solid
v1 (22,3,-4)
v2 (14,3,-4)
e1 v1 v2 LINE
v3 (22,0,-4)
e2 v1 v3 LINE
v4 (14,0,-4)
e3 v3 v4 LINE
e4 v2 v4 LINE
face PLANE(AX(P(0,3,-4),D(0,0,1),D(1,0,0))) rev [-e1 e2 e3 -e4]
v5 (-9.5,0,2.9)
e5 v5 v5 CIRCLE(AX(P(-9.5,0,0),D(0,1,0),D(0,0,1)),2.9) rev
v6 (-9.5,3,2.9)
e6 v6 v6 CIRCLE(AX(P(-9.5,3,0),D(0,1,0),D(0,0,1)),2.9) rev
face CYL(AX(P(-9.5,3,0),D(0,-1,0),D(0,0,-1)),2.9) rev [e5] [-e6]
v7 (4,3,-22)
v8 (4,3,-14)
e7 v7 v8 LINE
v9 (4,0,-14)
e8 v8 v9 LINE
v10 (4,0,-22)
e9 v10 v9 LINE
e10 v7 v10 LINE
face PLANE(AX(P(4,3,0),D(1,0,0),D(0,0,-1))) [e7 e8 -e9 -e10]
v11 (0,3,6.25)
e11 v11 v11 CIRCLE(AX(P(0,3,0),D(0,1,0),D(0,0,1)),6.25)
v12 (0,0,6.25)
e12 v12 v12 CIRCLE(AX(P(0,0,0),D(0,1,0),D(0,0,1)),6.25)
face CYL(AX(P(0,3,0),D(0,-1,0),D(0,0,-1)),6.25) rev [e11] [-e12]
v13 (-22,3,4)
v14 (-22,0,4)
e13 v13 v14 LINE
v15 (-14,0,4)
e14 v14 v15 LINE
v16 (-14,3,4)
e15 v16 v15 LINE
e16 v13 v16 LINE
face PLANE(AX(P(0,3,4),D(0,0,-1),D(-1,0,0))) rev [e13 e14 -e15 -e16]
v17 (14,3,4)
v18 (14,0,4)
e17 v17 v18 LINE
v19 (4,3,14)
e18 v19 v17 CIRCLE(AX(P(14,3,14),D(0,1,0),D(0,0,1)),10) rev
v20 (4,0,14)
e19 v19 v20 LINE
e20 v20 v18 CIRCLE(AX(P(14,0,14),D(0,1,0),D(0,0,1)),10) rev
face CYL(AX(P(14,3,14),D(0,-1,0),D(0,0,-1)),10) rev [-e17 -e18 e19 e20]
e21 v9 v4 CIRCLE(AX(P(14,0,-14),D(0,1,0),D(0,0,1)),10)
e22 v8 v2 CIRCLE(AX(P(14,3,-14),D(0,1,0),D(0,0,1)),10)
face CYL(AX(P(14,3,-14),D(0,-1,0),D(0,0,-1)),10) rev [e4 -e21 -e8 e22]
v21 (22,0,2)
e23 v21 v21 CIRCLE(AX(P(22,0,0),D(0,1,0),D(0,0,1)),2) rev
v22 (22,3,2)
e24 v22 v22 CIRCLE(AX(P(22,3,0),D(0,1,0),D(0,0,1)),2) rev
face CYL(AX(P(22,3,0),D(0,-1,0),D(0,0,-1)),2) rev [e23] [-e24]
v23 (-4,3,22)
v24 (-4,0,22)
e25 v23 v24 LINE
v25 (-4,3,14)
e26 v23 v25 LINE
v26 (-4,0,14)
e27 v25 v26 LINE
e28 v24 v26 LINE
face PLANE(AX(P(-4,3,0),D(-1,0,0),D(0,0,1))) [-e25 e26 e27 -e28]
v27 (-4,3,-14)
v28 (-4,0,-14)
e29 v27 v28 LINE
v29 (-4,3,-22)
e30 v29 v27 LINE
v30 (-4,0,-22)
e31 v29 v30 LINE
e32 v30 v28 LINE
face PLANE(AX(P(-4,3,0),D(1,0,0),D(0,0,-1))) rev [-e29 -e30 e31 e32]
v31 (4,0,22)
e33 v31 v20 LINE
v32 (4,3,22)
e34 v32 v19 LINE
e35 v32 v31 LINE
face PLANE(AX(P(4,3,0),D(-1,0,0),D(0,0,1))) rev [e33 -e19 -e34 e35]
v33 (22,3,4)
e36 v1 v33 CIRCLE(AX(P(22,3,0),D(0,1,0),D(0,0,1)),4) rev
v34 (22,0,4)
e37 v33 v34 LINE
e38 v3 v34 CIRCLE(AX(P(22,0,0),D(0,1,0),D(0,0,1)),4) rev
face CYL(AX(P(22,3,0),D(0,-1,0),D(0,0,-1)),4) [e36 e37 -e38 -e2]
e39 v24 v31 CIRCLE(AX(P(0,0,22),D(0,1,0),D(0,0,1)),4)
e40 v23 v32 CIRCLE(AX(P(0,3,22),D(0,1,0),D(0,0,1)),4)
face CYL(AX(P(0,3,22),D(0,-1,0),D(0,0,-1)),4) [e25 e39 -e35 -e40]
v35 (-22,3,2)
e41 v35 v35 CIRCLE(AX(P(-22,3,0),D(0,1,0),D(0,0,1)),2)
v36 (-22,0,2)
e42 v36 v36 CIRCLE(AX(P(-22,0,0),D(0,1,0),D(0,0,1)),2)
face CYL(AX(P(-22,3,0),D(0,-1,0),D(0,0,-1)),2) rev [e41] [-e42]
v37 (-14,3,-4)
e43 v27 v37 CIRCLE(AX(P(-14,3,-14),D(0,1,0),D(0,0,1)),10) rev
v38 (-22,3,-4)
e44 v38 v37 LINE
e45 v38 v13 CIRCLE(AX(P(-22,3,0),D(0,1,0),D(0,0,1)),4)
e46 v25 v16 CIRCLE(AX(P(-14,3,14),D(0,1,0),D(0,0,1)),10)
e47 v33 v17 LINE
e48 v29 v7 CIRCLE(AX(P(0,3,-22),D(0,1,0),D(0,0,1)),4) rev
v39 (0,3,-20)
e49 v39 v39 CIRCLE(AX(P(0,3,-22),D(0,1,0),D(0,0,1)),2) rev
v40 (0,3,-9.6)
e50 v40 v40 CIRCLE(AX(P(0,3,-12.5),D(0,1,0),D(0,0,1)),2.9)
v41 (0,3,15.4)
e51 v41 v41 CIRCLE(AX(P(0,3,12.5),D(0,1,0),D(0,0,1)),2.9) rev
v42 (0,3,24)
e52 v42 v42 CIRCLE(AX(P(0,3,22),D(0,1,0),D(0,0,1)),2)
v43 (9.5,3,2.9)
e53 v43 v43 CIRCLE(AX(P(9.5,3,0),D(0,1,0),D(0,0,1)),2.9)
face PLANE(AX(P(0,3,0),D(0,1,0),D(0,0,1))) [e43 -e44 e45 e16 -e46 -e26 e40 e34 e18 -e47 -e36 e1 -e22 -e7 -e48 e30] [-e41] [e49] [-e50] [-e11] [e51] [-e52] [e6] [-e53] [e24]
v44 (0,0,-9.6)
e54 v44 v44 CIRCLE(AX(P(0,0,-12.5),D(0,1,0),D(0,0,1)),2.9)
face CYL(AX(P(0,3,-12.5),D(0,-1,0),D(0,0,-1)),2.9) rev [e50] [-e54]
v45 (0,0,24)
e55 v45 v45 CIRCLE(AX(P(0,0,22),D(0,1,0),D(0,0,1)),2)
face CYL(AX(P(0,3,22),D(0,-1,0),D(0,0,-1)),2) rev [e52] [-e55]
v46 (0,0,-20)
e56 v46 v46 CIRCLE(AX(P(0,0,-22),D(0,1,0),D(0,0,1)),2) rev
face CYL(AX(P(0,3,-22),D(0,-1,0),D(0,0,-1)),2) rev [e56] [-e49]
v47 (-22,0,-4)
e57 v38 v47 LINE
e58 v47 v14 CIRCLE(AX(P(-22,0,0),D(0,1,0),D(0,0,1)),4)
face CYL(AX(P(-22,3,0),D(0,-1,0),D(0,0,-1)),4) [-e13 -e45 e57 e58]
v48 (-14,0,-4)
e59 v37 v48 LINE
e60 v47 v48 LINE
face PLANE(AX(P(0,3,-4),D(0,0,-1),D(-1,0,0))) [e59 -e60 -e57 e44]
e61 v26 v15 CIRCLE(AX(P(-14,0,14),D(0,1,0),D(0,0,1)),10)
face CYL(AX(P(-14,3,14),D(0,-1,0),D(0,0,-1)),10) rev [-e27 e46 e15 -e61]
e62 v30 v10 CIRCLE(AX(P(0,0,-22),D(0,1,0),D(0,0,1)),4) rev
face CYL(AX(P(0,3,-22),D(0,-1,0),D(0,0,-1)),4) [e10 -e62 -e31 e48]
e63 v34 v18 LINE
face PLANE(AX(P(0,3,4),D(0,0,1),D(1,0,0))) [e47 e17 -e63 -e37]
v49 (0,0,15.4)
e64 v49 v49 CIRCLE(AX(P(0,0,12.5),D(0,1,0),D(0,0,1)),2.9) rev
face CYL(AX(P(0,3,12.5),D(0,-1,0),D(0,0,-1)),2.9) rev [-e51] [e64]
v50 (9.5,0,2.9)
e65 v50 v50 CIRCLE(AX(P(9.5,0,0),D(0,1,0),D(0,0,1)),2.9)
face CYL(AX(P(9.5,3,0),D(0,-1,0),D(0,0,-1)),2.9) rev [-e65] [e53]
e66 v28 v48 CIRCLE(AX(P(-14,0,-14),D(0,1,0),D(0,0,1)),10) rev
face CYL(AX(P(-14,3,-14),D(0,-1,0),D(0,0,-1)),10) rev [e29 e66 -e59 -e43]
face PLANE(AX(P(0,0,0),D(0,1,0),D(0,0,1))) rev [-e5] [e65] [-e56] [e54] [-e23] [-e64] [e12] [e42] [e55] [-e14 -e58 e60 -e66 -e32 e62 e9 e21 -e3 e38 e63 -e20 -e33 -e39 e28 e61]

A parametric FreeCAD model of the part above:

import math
import FreeCAD as App
import Part
import Sketcher
Q = App.Units.Quantity

doc = App.newDocument("Part")
params = doc.addObject("Spreadsheet::Sheet", "Params")
for row, (alias, value) in enumerate([
    ("sketch1_diameter", "4 mm"),
    ("sketch1_radius", "4 mm"),
    ("sketch1_radius2", "10 mm"),
    ("sketch1_diameter2", "5.8 mm"),
    ("sketch1_diameter3", "12.5 mm"),
    ("pad1_length", "3 mm"),
], start=1):
    params.set(f"A{row}", alias)
    params.set(f"B{row}", "=" + value)
    params.setAlias(f"B{row}", alias)

body = doc.addObject("PartDesign::Body", "Body")

sketch1 = body.newObject("Sketcher::SketchObject", "Sketch")
sketch1.AttachmentSupport = (doc.getObject("XZ_Plane"), [""])
sketch1.MapMode = "FlatFace"
sketch1.addGeometry([
    Part.ArcOfCircle(Part.Circle(App.Vector(0, -22, 0), App.Vector(0, 0, 1), 4), math.radians(180), math.radians(360)),
    Part.LineSegment(App.Vector(-4, -22, 0), App.Vector(-4, -14, 0)),
    Part.ArcOfCircle(Part.Circle(App.Vector(-14, -14, 0), App.Vector(0, 0, 1), 10), math.radians(0), math.radians(90)),
    Part.LineSegment(App.Vector(-14, -4, 0), App.Vector(-22, -4, 0)),
    Part.ArcOfCircle(Part.Circle(App.Vector(-22, 0, 0), App.Vector(0, 0, 1), 4), math.radians(90), math.radians(270)),
    Part.LineSegment(App.Vector(-22, 4, 0), App.Vector(-14, 4, 0)),
    Part.ArcOfCircle(Part.Circle(App.Vector(-14, 14, 0), App.Vector(0, 0, 1), 10), math.radians(-90), math.radians(0)),
    Part.LineSegment(App.Vector(-4, 14, 0), App.Vector(-4, 22, 0)),
    Part.ArcOfCircle(Part.Circle(App.Vector(0, 22, 0), App.Vector(0, 0, 1), 4), math.radians(0), math.radians(180)),
    Part.LineSegment(App.Vector(4, 22, 0), App.Vector(4, 14, 0)),
    Part.ArcOfCircle(Part.Circle(App.Vector(14, 14, 0), App.Vector(0, 0, 1), 10), math.radians(180), math.radians(270)),
    Part.LineSegment(App.Vector(14, 4, 0), App.Vector(22, 4, 0)),
    Part.ArcOfCircle(Part.Circle(App.Vector(22, 0, 0), App.Vector(0, 0, 1), 4), math.radians(-90), math.radians(90)),
    Part.LineSegment(App.Vector(22, -4, 0), App.Vector(14, -4, 0)),
    Part.ArcOfCircle(Part.Circle(App.Vector(14, -14, 0), App.Vector(0, 0, 1), 10), math.radians(90), math.radians(180)),
    Part.LineSegment(App.Vector(4, -14, 0), App.Vector(4, -22, 0)),
    Part.Circle(App.Vector(0, 22, 0), App.Vector(0, 0, 1), 2),
    Part.Circle(App.Vector(0, 12.5, 0), App.Vector(0, 0, 1), 2.9),
    Part.Circle(App.Vector(-22, 0, 0), App.Vector(0, 0, 1), 2),
    Part.Circle(App.Vector(-9.5, 0, 0), App.Vector(0, 0, 1), 2.9),
    Part.Circle(App.Vector(0, 0, 0), App.Vector(0, 0, 1), 6.25),
    Part.Circle(App.Vector(9.5, 0, 0), App.Vector(0, 0, 1), 2.9),
    Part.Circle(App.Vector(22, 0, 0), App.Vector(0, 0, 1), 2),
    Part.Circle(App.Vector(0, -12.5, 0), App.Vector(0, 0, 1), 2.9),
    Part.Circle(App.Vector(0, -22, 0), App.Vector(0, 0, 1), 2),
], False)
sketch1.addConstraint([
    Sketcher.Constraint("Tangent", 0, 1, 1, 1),
    Sketcher.Constraint("Tangent", 1, 2, 2, 1),
    Sketcher.Constraint("Tangent", 2, 2, 3, 1),
    Sketcher.Constraint("Tangent", 3, 2, 4, 2),
    Sketcher.Constraint("Tangent", 4, 1, 5, 1),
    Sketcher.Constraint("Tangent", 5, 2, 6, 1),
    Sketcher.Constraint("Tangent", 6, 2, 7, 1),
    Sketcher.Constraint("Tangent", 7, 2, 8, 2),
    Sketcher.Constraint("Tangent", 8, 1, 9, 1),
    Sketcher.Constraint("Tangent", 9, 2, 10, 1),
    Sketcher.Constraint("Tangent", 10, 2, 11, 1),
    Sketcher.Constraint("Tangent", 11, 2, 12, 2),
    Sketcher.Constraint("Tangent", 12, 1, 13, 1),
    Sketcher.Constraint("Tangent", 13, 2, 14, 1),
    Sketcher.Constraint("Tangent", 14, 2, 15, 1),
    Sketcher.Constraint("Tangent", 15, 2, 0, 2),
    Sketcher.Constraint("Vertical", 1),
    Sketcher.Constraint("Horizontal", 3),
    Sketcher.Constraint("Horizontal", 5),
    Sketcher.Constraint("Vertical", 7),
    Sketcher.Constraint("Vertical", 9),
    Sketcher.Constraint("Horizontal", 11),
    Sketcher.Constraint("Horizontal", 13),
    Sketcher.Constraint("Vertical", 15),
    Sketcher.Constraint("Coincident", 20, 3, -1, 1),
    Sketcher.Constraint("Coincident", 16, 3, 8, 3),
    Sketcher.Constraint("Coincident", 18, 3, 4, 3),
    Sketcher.Constraint("Coincident", 22, 3, 12, 3),
    Sketcher.Constraint("Coincident", 24, 3, 0, 3),
    Sketcher.Constraint("Equal", 0, 4),
    Sketcher.Constraint("Equal", 2, 6),
    Sketcher.Constraint("Equal", 4, 8),
    Sketcher.Constraint("Equal", 6, 10),
    Sketcher.Constraint("Equal", 8, 12),
    Sketcher.Constraint("Equal", 10, 14),
    Sketcher.Constraint("Equal", 16, 18),
    Sketcher.Constraint("Equal", 17, 19),
    Sketcher.Constraint("Equal", 19, 21),
    Sketcher.Constraint("Equal", 18, 22),
    Sketcher.Constraint("Equal", 21, 23),
    Sketcher.Constraint("Equal", 22, 24),
    Sketcher.Constraint("Symmetric", 0, 3, 8, 3, -1, 1),
    Sketcher.Constraint("Symmetric", 4, 3, 12, 3, -1, 1),
    Sketcher.Constraint("Symmetric", 19, 3, 21, 3, -1, 1),
    Sketcher.Constraint("Symmetric", 17, 3, 23, 3, -1, 1),
    Sketcher.Constraint("Symmetric", 6, 3, 10, 3, -2),
    Sketcher.Constraint("PointOnObject", 17, 3, -2),
    Sketcher.Constraint("PointOnObject", 19, 3, -1),
    Sketcher.Constraint("Equal", 13, 1),
    Sketcher.Constraint("Diameter", 16, Q("4 mm")),
    Sketcher.Constraint("Radius", 0, Q("4 mm")),
    Sketcher.Constraint("Radius", 2, Q("10 mm")),
    Sketcher.Constraint("Diameter", 17, Q("5.8 mm")),
    Sketcher.Constraint("Diameter", 20, Q("12.5 mm")),
    Sketcher.Constraint("DistanceX", 3, 2, 3, 1, Q("8 mm")),
    Sketcher.Constraint("DistanceY", -1, 1, 17, 3, Q("12.5 mm")),
    Sketcher.Constraint("DistanceX", 19, 3, -1, 1, Q("9.5 mm")),
])
sketch1.setExpression("Constraints[49]", "Params.sketch1_diameter")
sketch1.setExpression("Constraints[50]", "Params.sketch1_radius")
sketch1.setExpression("Constraints[51]", "Params.sketch1_radius2")
sketch1.setExpression("Constraints[52]", "Params.sketch1_diameter2")
sketch1.setExpression("Constraints[53]", "Params.sketch1_diameter3")
pad1 = body.newObject("PartDesign::Pad", "Pad")
pad1.Profile = sketch1
pad1.setExpression("Length", "Params.pad1_length")
pad1.Reversed = True

doc.recompute()
